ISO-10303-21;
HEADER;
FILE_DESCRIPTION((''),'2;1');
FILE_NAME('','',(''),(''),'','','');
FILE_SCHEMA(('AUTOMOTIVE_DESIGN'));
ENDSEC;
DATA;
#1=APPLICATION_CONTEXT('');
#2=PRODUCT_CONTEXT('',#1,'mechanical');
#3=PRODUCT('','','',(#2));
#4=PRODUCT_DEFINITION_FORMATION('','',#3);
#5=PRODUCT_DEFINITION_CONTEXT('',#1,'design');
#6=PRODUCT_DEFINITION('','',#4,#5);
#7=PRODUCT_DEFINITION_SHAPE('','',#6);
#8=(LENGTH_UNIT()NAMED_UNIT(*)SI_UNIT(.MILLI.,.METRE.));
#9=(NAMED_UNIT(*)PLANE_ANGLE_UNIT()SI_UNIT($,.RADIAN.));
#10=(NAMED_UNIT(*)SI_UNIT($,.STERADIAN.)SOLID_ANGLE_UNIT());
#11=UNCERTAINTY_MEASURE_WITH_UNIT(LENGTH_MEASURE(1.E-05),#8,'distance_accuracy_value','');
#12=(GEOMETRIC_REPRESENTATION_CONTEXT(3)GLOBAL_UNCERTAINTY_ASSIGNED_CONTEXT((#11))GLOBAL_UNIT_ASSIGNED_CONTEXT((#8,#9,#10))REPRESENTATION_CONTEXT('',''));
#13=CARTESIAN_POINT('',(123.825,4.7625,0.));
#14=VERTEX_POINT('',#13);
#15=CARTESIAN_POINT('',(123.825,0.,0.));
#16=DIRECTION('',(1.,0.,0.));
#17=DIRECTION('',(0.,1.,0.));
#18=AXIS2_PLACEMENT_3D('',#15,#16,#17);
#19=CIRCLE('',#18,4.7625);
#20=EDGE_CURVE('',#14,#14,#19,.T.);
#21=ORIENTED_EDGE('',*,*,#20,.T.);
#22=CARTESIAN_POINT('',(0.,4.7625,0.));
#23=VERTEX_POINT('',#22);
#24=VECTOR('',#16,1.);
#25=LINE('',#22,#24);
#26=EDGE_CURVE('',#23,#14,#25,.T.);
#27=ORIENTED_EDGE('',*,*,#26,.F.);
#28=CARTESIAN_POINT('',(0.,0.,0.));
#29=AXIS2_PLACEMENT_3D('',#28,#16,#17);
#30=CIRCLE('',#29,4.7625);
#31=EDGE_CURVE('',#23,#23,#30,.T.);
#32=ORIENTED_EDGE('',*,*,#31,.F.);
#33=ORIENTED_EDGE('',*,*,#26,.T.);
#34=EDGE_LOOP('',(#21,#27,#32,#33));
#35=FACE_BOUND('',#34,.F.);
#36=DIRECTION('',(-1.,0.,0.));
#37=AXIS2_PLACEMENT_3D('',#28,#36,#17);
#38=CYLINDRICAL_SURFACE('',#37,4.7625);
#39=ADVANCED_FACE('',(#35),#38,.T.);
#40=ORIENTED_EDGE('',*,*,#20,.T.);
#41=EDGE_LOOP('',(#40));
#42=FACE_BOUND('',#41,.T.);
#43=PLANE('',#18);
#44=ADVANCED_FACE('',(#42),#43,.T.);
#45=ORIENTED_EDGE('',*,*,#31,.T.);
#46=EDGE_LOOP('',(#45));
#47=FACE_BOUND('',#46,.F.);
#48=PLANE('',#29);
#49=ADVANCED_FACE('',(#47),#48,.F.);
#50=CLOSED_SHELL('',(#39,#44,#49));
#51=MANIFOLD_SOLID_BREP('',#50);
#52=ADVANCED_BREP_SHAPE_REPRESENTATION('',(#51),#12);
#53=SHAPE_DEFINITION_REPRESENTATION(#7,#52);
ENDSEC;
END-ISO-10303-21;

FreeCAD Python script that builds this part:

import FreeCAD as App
import Part
import Sketcher
Q = App.Units.Quantity

doc = App.newDocument("Part")
body = doc.addObject("PartDesign::Body", "Body")

sketch1 = body.newObject("Sketcher::SketchObject", "Sketch")
sketch1.AttachmentSupport = (doc.getObject("YZ_Plane"), [""])
sketch1.MapMode = "FlatFace"
sketch1.addGeometry(Part.Circle(App.Vector(0, 0, 0), App.Vector(0, 0, 1), 4.8), False)
sketch1.addConstraint(Sketcher.Constraint("Coincident", 0, 3, -1, 1))
sketch1.addConstraint(Sketcher.Constraint("Diameter", 0, Q("0.375 in")))
pad1 = body.newObject("PartDesign::Pad", "Pad")
pad1.Profile = sketch1
pad1.Length = Q("4.875 in")

doc.recompute()
